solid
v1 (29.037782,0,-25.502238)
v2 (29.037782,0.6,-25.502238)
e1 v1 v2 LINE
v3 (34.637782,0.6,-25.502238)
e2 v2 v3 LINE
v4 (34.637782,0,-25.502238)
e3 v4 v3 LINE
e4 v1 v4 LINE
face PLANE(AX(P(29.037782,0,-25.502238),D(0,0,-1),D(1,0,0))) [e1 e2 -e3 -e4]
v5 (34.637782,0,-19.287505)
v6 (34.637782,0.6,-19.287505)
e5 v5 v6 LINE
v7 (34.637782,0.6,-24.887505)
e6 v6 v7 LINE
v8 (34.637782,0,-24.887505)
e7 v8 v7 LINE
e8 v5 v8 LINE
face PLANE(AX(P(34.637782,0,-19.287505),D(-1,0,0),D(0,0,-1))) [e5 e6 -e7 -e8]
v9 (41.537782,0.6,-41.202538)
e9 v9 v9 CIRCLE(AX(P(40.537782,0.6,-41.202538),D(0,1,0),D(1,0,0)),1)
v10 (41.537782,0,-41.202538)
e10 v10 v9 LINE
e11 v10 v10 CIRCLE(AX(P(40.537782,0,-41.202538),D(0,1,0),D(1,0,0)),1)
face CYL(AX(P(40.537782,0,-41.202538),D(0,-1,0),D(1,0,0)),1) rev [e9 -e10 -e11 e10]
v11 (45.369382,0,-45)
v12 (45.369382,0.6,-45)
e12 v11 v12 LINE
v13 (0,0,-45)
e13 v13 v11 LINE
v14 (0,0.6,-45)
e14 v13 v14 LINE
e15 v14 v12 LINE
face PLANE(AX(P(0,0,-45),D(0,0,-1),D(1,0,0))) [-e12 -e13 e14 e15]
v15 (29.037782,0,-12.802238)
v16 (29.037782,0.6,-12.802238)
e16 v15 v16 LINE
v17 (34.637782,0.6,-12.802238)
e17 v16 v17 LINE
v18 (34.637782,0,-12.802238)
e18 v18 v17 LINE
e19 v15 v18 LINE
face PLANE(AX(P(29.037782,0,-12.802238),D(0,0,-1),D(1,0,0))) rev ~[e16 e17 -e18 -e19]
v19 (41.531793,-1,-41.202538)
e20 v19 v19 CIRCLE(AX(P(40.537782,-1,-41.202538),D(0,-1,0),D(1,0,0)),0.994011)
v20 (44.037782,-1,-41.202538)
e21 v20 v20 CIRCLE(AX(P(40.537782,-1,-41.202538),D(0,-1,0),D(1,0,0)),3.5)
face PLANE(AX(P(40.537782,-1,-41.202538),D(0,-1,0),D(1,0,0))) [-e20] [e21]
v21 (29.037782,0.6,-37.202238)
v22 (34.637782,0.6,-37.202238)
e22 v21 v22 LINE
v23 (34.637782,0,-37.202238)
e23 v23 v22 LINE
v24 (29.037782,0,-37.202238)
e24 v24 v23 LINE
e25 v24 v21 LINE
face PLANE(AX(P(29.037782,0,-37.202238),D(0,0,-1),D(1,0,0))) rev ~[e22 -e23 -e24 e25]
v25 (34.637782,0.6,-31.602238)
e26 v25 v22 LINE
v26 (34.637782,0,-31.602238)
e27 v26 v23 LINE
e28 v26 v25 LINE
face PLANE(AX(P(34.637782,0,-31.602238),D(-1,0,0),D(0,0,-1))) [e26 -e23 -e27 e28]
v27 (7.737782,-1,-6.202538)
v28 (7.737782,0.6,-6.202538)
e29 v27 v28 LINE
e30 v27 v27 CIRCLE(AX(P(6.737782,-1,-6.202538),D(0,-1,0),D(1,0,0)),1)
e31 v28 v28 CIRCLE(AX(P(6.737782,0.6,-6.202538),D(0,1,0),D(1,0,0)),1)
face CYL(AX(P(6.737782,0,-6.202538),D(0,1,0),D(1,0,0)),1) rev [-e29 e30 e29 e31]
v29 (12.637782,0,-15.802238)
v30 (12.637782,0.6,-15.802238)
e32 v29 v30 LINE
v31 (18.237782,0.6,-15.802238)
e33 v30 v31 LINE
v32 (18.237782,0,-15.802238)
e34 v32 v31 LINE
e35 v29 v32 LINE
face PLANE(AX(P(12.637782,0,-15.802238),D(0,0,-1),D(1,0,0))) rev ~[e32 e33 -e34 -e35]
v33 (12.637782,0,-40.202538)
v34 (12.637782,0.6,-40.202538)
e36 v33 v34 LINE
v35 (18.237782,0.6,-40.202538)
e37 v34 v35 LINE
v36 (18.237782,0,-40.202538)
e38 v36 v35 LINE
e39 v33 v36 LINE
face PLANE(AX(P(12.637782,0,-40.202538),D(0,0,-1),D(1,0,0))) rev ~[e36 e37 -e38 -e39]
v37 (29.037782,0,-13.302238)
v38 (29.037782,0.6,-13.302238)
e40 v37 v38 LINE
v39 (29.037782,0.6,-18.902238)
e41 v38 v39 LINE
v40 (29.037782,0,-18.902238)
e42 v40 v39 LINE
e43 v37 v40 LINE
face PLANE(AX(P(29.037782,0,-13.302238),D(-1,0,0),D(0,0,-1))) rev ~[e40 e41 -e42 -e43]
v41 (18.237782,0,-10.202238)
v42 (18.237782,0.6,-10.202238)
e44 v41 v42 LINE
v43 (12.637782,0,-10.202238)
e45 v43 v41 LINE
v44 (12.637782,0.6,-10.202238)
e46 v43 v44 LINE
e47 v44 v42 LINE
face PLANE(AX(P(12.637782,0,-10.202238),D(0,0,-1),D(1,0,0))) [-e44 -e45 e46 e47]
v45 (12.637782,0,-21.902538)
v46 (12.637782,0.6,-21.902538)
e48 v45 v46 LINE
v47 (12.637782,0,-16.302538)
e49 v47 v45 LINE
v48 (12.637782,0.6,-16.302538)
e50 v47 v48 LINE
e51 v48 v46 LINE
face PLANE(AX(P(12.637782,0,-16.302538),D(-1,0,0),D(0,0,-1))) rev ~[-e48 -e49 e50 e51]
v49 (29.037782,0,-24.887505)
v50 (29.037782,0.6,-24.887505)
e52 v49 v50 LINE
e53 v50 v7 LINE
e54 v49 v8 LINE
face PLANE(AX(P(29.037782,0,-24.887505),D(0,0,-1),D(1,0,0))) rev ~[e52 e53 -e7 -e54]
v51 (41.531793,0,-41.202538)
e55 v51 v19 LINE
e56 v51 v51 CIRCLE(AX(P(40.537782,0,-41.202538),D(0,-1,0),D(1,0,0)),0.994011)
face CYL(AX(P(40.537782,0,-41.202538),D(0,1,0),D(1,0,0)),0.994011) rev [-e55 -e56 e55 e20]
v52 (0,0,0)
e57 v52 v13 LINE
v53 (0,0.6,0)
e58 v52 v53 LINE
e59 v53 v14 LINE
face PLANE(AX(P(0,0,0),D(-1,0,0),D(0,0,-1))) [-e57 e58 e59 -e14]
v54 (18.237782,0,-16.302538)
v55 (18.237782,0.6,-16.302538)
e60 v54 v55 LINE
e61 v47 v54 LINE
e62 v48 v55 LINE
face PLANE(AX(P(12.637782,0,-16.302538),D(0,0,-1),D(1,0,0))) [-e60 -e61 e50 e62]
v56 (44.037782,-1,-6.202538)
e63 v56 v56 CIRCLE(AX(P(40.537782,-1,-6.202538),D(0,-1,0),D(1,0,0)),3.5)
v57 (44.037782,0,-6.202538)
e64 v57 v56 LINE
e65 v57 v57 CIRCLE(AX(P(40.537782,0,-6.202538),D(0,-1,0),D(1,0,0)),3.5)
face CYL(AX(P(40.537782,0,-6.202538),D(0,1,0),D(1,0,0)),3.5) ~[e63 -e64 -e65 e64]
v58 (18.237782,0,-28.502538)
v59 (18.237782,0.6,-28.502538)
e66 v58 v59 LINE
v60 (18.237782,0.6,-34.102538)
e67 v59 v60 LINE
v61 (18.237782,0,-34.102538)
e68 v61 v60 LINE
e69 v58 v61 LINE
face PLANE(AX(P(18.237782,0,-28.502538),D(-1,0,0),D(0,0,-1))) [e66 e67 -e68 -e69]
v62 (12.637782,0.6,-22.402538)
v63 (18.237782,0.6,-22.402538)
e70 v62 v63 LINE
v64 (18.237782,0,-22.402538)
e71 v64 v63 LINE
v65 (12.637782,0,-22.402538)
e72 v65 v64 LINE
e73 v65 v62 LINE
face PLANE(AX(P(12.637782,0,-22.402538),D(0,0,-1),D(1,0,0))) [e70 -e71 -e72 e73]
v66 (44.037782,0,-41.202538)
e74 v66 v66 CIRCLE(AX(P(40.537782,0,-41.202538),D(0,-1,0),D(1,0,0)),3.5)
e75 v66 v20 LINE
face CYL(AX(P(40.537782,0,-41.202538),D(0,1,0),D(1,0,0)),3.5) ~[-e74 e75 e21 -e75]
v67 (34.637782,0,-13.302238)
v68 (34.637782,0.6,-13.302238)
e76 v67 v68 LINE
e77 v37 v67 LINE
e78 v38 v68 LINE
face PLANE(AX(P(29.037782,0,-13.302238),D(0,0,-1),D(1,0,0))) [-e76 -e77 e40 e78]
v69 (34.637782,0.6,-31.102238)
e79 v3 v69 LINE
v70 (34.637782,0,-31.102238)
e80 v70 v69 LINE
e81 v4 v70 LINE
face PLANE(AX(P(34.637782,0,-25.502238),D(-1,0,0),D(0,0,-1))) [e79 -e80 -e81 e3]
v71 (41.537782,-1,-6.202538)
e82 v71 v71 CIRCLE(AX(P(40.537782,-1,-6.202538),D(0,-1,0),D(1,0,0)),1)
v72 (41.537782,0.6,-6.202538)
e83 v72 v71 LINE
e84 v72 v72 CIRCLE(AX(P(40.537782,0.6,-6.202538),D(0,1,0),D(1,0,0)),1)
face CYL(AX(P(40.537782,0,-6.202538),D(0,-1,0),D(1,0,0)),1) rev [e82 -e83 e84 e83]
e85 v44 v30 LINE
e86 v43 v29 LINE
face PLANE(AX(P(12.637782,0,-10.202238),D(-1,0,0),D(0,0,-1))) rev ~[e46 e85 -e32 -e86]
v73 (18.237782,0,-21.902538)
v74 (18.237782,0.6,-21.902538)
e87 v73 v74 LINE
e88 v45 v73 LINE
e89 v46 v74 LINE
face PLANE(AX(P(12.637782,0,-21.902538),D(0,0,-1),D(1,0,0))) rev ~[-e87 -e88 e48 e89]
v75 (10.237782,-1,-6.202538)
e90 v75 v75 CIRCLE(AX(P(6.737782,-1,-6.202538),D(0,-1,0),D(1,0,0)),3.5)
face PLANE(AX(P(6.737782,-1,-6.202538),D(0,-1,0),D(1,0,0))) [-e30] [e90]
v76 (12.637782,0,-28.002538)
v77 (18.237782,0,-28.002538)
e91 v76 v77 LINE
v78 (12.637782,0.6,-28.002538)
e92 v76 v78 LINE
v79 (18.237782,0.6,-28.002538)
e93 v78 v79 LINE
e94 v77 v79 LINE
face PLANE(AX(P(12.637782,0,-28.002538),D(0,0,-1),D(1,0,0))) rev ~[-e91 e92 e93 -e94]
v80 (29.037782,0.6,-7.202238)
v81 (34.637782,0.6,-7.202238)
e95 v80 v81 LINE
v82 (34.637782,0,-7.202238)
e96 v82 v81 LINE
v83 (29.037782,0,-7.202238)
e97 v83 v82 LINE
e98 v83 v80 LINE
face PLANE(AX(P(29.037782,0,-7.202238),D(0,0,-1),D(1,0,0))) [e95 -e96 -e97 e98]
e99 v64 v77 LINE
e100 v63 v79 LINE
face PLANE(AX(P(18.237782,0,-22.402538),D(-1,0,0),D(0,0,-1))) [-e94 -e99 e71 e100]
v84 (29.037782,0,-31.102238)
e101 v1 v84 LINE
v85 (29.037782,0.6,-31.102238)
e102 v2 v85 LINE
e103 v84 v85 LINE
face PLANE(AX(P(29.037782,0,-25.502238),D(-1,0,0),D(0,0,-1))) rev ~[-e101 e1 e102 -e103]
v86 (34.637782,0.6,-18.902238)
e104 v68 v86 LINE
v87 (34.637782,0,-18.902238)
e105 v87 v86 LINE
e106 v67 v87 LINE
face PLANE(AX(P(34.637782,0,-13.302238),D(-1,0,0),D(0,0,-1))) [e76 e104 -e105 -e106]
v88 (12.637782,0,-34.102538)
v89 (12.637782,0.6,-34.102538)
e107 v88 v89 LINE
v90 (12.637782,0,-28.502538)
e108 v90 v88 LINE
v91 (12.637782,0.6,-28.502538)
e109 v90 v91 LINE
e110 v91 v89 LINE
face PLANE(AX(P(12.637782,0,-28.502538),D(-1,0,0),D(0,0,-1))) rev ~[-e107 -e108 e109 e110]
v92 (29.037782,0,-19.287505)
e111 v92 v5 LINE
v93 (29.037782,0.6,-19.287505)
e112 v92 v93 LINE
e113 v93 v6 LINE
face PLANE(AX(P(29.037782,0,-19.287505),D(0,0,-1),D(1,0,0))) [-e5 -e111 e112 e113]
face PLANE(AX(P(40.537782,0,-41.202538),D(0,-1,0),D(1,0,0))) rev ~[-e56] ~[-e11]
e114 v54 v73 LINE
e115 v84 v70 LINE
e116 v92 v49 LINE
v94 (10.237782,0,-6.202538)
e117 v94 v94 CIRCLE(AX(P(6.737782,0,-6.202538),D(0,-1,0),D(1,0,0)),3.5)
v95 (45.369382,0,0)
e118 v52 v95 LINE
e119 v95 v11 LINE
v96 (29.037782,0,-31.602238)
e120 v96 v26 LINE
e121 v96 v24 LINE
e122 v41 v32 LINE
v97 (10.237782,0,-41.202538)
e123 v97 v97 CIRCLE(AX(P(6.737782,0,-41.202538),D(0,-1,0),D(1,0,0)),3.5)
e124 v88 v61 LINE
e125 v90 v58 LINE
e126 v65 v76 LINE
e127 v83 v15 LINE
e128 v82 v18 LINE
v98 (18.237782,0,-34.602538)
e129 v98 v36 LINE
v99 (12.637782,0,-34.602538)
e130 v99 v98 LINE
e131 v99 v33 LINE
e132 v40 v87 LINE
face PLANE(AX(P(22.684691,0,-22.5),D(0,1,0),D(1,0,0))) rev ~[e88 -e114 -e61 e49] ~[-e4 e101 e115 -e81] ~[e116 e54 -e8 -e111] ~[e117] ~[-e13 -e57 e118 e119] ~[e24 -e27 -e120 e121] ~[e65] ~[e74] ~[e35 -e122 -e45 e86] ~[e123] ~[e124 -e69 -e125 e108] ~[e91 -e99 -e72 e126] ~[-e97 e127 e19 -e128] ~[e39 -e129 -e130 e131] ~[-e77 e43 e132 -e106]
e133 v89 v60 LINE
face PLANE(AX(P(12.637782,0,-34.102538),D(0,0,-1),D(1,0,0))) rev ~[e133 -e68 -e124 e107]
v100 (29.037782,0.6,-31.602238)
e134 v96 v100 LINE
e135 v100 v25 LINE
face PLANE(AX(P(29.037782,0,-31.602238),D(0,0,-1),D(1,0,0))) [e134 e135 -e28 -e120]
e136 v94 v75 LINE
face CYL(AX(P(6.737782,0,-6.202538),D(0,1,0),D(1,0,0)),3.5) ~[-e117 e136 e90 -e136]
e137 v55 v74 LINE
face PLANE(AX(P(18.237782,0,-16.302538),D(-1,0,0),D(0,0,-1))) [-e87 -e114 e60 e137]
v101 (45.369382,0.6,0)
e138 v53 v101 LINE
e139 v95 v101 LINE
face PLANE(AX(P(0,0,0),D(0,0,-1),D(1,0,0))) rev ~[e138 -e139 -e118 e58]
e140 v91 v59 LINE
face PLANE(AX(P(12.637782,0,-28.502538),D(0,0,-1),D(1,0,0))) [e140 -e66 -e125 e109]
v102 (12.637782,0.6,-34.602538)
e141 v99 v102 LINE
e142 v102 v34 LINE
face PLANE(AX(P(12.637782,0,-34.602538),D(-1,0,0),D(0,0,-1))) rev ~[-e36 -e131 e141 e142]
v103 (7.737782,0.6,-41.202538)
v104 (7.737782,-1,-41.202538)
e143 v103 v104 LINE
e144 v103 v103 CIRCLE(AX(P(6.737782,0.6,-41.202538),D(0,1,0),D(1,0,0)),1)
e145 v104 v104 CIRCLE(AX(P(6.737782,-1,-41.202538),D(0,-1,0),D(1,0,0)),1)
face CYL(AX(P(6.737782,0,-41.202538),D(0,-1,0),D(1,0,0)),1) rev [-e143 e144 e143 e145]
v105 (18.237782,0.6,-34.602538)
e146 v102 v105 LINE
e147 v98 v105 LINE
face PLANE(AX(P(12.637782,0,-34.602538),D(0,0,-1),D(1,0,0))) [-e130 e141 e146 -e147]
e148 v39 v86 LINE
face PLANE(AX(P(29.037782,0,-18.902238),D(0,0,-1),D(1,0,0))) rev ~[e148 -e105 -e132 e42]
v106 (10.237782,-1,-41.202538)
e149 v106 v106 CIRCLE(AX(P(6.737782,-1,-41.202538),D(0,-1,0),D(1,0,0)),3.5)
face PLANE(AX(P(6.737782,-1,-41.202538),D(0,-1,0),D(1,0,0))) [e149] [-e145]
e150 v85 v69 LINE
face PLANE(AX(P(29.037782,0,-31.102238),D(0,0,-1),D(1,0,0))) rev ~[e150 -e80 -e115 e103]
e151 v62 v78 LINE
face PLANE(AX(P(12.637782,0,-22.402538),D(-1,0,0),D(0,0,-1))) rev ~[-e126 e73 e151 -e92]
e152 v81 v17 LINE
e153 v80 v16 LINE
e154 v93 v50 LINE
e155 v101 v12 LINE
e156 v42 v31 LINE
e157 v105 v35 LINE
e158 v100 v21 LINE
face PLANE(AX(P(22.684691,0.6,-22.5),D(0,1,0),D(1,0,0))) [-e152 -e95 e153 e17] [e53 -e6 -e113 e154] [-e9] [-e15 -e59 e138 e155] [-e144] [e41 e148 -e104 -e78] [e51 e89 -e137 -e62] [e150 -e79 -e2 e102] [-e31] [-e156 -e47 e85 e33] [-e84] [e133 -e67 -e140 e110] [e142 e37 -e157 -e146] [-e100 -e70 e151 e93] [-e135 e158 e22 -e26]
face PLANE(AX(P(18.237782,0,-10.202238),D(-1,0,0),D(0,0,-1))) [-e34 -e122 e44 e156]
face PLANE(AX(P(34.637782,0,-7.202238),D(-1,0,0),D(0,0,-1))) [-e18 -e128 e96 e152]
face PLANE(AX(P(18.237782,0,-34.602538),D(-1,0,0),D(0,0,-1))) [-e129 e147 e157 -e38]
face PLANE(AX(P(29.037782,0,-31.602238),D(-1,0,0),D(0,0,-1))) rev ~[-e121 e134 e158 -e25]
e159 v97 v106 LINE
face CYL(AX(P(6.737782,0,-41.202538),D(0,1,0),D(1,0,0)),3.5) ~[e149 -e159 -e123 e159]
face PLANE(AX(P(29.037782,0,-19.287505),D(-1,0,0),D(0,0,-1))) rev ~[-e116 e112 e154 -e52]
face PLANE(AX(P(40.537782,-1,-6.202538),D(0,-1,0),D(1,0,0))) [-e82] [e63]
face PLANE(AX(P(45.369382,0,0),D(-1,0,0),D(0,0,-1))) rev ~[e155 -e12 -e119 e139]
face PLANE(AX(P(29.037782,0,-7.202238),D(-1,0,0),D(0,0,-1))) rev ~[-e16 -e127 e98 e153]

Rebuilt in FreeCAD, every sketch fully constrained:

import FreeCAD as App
import Part
import Sketcher

V = App.Vector


def add_polygon(sketch, points):
    """Adds a closed chain of lines whose ends are joined by coincident constraints."""
    first, n = sketch.GeometryCount, len(points)
    for a, b in zip(points, points[1:] + points[:1]):
        sketch.addGeometry(Part.LineSegment(App.Vector(*a, 0), App.Vector(*b, 0)), False)
    for i in range(n):
        sketch.addConstraint(Sketcher.Constraint("Coincident", first + i, 2, first + (i + 1) % n, 1))

doc = App.newDocument("Part")
body = doc.addObject("PartDesign::Body", "Body")

# Sketch on XZ plane
sketch1 = body.newObject("Sketcher::SketchObject", "Sketch")
sketch1.AttachmentSupport = (doc.getObject("XZ_Plane"), [""])
sketch1.MapMode = "FlatFace"
add_polygon(sketch1, [(0, -45), (0, 0), (45.4, 0), (45.4, -45)])  # lines 0-3
sketch1.addGeometry(Part.Circle(V(6.7, -6.2, 0), V(0, 0, 1), 1), False)  # 4
add_polygon(sketch1, [(18.2, -10.2), (12.6, -10.2), (12.6, -15.8), (18.2, -15.8)])  # lines 5-8
add_polygon(sketch1, [(18.2, -16.3), (12.6, -16.3), (12.6, -21.9), (18.2, -21.9)])  # lines 9-12
add_polygon(sketch1, [(34.6, -7.2), (29, -7.2), (29, -12.8), (34.6, -12.8)])  # lines 13-16
sketch1.addGeometry(Part.Circle(V(40.5, -6.2, 0), V(0, 0, 1), 1), False)  # 17
add_polygon(sketch1, [(34.6, -13.3), (29, -13.3), (29, -18.9), (34.6, -18.9)])  # lines 18-21
add_polygon(sketch1, [(34.6, -19.3), (29, -19.3), (29, -24.9), (34.6, -24.9)])  # lines 22-25
add_polygon(sketch1, [(18.2, -22.4), (12.6, -22.4), (12.6, -28), (18.2, -28)])  # lines 26-29
add_polygon(sketch1, [(18.2, -28.5), (12.6, -28.5), (12.6, -34.1), (18.2, -34.1)])  # lines 30-33
sketch1.addGeometry(Part.Circle(V(6.7, -41.2, 0), V(0, 0, 1), 1), False)  # 34
add_polygon(sketch1, [(18.2, -34.6), (12.6, -34.6), (12.6, -40.2), (18.2, -40.2)])  # lines 35-38
add_polygon(sketch1, [(34.6, -25.5), (29, -25.5), (29, -31.1), (34.6, -31.1)])  # lines 39-42
add_polygon(sketch1, [(34.6, -31.6), (29, -31.6), (29, -37.2), (34.6, -37.2)])  # lines 43-46
sketch1.addGeometry(Part.Circle(V(40.5, -41.2, 0), V(0, 0, 1), 1), False)  # 47
sketch1.addConstraint(Sketcher.Constraint("Vertical", 0))
sketch1.addConstraint(Sketcher.Constraint("Horizontal", 1))
sketch1.addConstraint(Sketcher.Constraint("Vertical", 2))
sketch1.addConstraint(Sketcher.Constraint("Horizontal", 3))
sketch1.addConstraint(Sketcher.Constraint("Horizontal", 5))
sketch1.addConstraint(Sketcher.Constraint("Vertical", 6))
sketch1.addConstraint(Sketcher.Constraint("Horizontal", 7))
sketch1.addConstraint(Sketcher.Constraint("Vertical", 8))
sketch1.addConstraint(Sketcher.Constraint("Horizontal", 9))
sketch1.addConstraint(Sketcher.Constraint("Vertical", 10))
sketch1.addConstraint(Sketcher.Constraint("Horizontal", 11))
sketch1.addConstraint(Sketcher.Constraint("Vertical", 12))
sketch1.addConstraint(Sketcher.Constraint("Horizontal", 13))
sketch1.addConstraint(Sketcher.Constraint("Vertical", 14))
sketch1.addConstraint(Sketcher.Constraint("Horizontal", 15))
sketch1.addConstraint(Sketcher.Constraint("Vertical", 16))
sketch1.addConstraint(Sketcher.Constraint("Horizontal", 18))
sketch1.addConstraint(Sketcher.Constraint("Vertical", 19))
sketch1.addConstraint(Sketcher.Constraint("Horizontal", 20))
sketch1.addConstraint(Sketcher.Constraint("Vertical", 21))
sketch1.addConstraint(Sketcher.Constraint("Horizontal", 22))
sketch1.addConstraint(Sketcher.Constraint("Vertical", 23))
sketch1.addConstraint(Sketcher.Constraint("Horizontal", 24))
sketch1.addConstraint(Sketcher.Constraint("Vertical", 25))
sketch1.addConstraint(Sketcher.Constraint("Horizontal", 26))
sketch1.addConstraint(Sketcher.Constraint("Vertical", 27))
sketch1.addConstraint(Sketcher.Constraint("Horizontal", 28))
sketch1.addConstraint(Sketcher.Constraint("Vertical", 29))
sketch1.addConstraint(Sketcher.Constraint("Horizontal", 30))
sketch1.addConstraint(Sketcher.Constraint("Vertical", 31))
sketch1.addConstraint(Sketcher.Constraint("Horizontal", 32))
sketch1.addConstraint(Sketcher.Constraint("Vertical", 33))
sketch1.addConstraint(Sketcher.Constraint("Horizontal", 35))
sketch1.addConstraint(Sketcher.Constraint("Vertical", 36))
sketch1.addConstraint(Sketcher.Constraint("Horizontal", 37))
sketch1.addConstraint(Sketcher.Constraint("Vertical", 38))
sketch1.addConstraint(Sketcher.Constraint("Horizontal", 39))
sketch1.addConstraint(Sketcher.Constraint("Vertical", 40))
sketch1.addConstraint(Sketcher.Constraint("Horizontal", 41))
sketch1.addConstraint(Sketcher.Constraint("Vertical", 42))
sketch1.addConstraint(Sketcher.Constraint("Horizontal", 43))
sketch1.addConstraint(Sketcher.Constraint("Vertical", 44))
sketch1.addConstraint(Sketcher.Constraint("Horizontal", 45))
sketch1.addConstraint(Sketcher.Constraint("Vertical", 46))
sketch1.addConstraint(Sketcher.Constraint("Coincident", 0, 2, -1, 1))
sketch1.addConstraint(Sketcher.Constraint("Equal", 4, 17))
sketch1.addConstraint(Sketcher.Constraint("Equal", 17, 34))
sketch1.addConstraint(Sketcher.Constraint("Equal", 34, 47))
sketch1.addConstraint(Sketcher.Constraint("Horizontal", 4, 3, 17, 3))
sketch1.addConstraint(Sketcher.Constraint("Horizontal", 34, 3, 47, 3))
sketch1.addConstraint(Sketcher.Constraint("Vertical", 4, 3, 34, 3))
sketch1.addConstraint(Sketcher.Constraint("Vertical", 17, 3, 47, 3))
sketch1.addConstraint(Sketcher.Constraint("Vertical", 6, 2, 9, 2))
sketch1.addConstraint(Sketcher.Constraint("Vertical", 8, 2, 11, 2))
sketch1.addConstraint(Sketcher.Constraint("Vertical", 14, 2, 18, 2))
sketch1.addConstraint(Sketcher.Constraint("Vertical", 16, 2, 20, 2))
sketch1.addConstraint(Sketcher.Constraint("Vertical", 19, 2, 22, 2))
sketch1.addConstraint(Sketcher.Constraint("Vertical", 21, 2, 24, 2))
sketch1.addConstraint(Sketcher.Constraint("Vertical", 10, 2, 26, 2))
sketch1.addConstraint(Sketcher.Constraint("Vertical", 12, 2, 28, 2))
sketch1.addConstraint(Sketcher.Constraint("Vertical", 27, 2, 30, 2))
sketch1.addConstraint(Sketcher.Constraint("Vertical", 29, 2, 32, 2))
sketch1.addConstraint(Sketcher.Constraint("Vertical", 31, 2, 35, 2))
sketch1.addConstraint(Sketcher.Constraint("Vertical", 33, 2, 37, 2))
sketch1.addConstraint(Sketcher.Constraint("Vertical", 23, 2, 39, 2))
sketch1.addConstraint(Sketcher.Constraint("Vertical", 25, 2, 41, 2))
sketch1.addConstraint(Sketcher.Constraint("Vertical", 40, 2, 43, 2))
sketch1.addConstraint(Sketcher.Constraint("Vertical", 42, 2, 45, 2))
sketch1.addConstraint(Sketcher.Constraint("Equal", 11, 13))
sketch1.addConstraint(Sketcher.Constraint("Equal", 45, 6))
sketch1.addConstraint(Sketcher.Constraint("Equal", 8, 10))
sketch1.addConstraint(Sketcher.Constraint("Equal", 12, 14))
sketch1.addConstraint(Sketcher.Constraint("Equal", 16, 19))
sketch1.addConstraint(Sketcher.Constraint("Equal", 21, 23))
sketch1.addConstraint(Sketcher.Constraint("Equal", 25, 27))
sketch1.addConstraint(Sketcher.Constraint("Equal", 29, 31))
sketch1.addConstraint(Sketcher.Constraint("Equal", 33, 36))
sketch1.addConstraint(Sketcher.Constraint("Equal", 38, 40))
sketch1.addConstraint(Sketcher.Constraint("Equal", 42, 44))
sketch1.addConstraint(Sketcher.Constraint("Diameter", 4, 2.0))
sketch1.addConstraint(Sketcher.Constraint("DistanceY", 0, 1, 0, 2, 45.0))
sketch1.addConstraint(Sketcher.Constraint("DistanceX", 5, 2, 5, 1, 5.6))
sketch1.addConstraint(Sketcher.Constraint("DistanceY", 34, 3, 4, 3, 35.0))
sketch1.addConstraint(Sketcher.Constraint("DistanceY", 8, 2, 13, 2, 3.0))
sketch1.addConstraint(Sketcher.Constraint("DistanceY", 34, 3, 36, 2, 1.0))
sketch1.addConstraint(Sketcher.Constraint("DistanceX", 4, 3, 17, 3, 33.8))
sketch1.addConstraint(Sketcher.Constraint("DistanceX", 4, 3, 5, 2, 5.9))
sketch1.addConstraint(Sketcher.Constraint("DistanceY", 9, 2, 4, 3, 10.1))
sketch1.addConstraint(Sketcher.Constraint("DistanceX", 8, 2, 13, 2, 10.8))
sketch1.addConstraint(Sketcher.Constraint("DistanceY", 18, 2, 14, 2, 0.5))
sketch1.addConstraint(Sketcher.Constraint("DistanceY", 26, 2, 10, 2, 0.5))
sketch1.addConstraint(Sketcher.Constraint("DistanceY", 30, 2, 27, 2, 0.5))
sketch1.addConstraint(Sketcher.Constraint("DistanceY", 39, 2, 19, 2, 6.6))
sketch1.addConstraint(Sketcher.Constraint("DistanceY", 43, 2, 40, 2, 0.5))
sketch1.addConstraint(Sketcher.Constraint("DistanceX", 1, 1, 1, 2, 45.369382))
sketch1.addConstraint(Sketcher.Constraint("DistanceX", 17, 3, 1, 2, 4.8316))
sketch1.addConstraint(Sketcher.Constraint("DistanceY", 5, 2, 4, 3, 3.9997))
sketch1.addConstraint(Sketcher.Constraint("DistanceY", 4, 3, -1, 1, 6.202538))
sketch1.addConstraint(Sketcher.Constraint("DistanceY", 22, 2, -1, 1, 19.287505))
pad1 = body.newObject("PartDesign::Pad", "Pad")
pad1.Profile = sketch1
pad1.Length = 0.6
pad1.Reversed = True

# Sketch on XZ plane
sketch2 = body.newObject("Sketcher::SketchObject", "Sketch001")
sketch2.AttachmentSupport = (doc.getObject("XZ_Plane"), [""])
sketch2.MapMode = "FlatFace"
sketch2.addGeometry(Part.Circle(V(6.7, -6.2, 0), V(0, 0, 1), 3.5), False)
sketch2.addGeometry(Part.Circle(V(6.7, -6.2, 0), V(0, 0, 1), 1), False)
sketch2.addGeometry(Part.Circle(V(40.5, -6.2, 0), V(0, 0, 1), 3.5), False)
sketch2.addGeometry(Part.Circle(V(40.5, -6.2, 0), V(0, 0, 1), 1), False)
sketch2.addGeometry(Part.Circle(V(40.5, -41.2, 0), V(0, 0, 1), 3.5), False)
sketch2.addGeometry(Part.Circle(V(40.5, -41.2, 0), V(0, 0, 1), 1), False)
sketch2.addGeometry(Part.Circle(V(6.7, -41.2, 0), V(0, 0, 1), 3.5), False)
sketch2.addGeometry(Part.Circle(V(6.7, -41.2, 0), V(0, 0, 1), 1), False)
sketch2.addConstraint(Sketcher.Constraint("Coincident", 1, 3, 0, 3))
sketch2.addConstraint(Sketcher.Constraint("Coincident", 3, 3, 2, 3))
sketch2.addConstraint(Sketcher.Constraint("Coincident", 5, 3, 4, 3))
sketch2.addConstraint(Sketcher.Constraint("Coincident", 7, 3, 6, 3))
sketch2.addConstraint(Sketcher.Constraint("Equal", 0, 2))
sketch2.addConstraint(Sketcher.Constraint("Equal", 1, 3))
sketch2.addConstraint(Sketcher.Constraint("Equal", 2, 4))
sketch2.addConstraint(Sketcher.Constraint("Equal", 4, 6))
sketch2.addConstraint(Sketcher.Constraint("Equal", 3, 7))
sketch2.addConstraint(Sketcher.Constraint("Horizontal", 1, 3, 2, 3))
sketch2.addConstraint(Sketcher.Constraint("Horizontal", 5, 3, 6, 3))
sketch2.addConstraint(Sketcher.Constraint("Vertical", 3, 3, 4, 3))
sketch2.addConstraint(Sketcher.Constraint("Vertical", 1, 3, 6, 3))
sketch2.addConstraint(Sketcher.Constraint("Diameter", 0, 7.0))
sketch2.addConstraint(Sketcher.Constraint("Diameter", 1, 2.0))
sketch2.addConstraint(Sketcher.Constraint("DistanceY", 4, 3, 2, 3, 35.0))
sketch2.addConstraint(Sketcher.Constraint("DistanceX", 0, 3, 2, 3, 33.8))
sketch2.addConstraint(Sketcher.Constraint("Diameter", 5, 1.988023))
sketch2.addConstraint(Sketcher.Constraint("DistanceX", -1, 1, 0, 3, 6.737782))
sketch2.addConstraint(Sketcher.Constraint("DistanceY", 0, 3, -1, 1, 6.202538))
pad2 = body.newObject("PartDesign::Pad", "Pad001")
pad2.Profile = sketch2
pad2.Length = 1

doc.recompute()
